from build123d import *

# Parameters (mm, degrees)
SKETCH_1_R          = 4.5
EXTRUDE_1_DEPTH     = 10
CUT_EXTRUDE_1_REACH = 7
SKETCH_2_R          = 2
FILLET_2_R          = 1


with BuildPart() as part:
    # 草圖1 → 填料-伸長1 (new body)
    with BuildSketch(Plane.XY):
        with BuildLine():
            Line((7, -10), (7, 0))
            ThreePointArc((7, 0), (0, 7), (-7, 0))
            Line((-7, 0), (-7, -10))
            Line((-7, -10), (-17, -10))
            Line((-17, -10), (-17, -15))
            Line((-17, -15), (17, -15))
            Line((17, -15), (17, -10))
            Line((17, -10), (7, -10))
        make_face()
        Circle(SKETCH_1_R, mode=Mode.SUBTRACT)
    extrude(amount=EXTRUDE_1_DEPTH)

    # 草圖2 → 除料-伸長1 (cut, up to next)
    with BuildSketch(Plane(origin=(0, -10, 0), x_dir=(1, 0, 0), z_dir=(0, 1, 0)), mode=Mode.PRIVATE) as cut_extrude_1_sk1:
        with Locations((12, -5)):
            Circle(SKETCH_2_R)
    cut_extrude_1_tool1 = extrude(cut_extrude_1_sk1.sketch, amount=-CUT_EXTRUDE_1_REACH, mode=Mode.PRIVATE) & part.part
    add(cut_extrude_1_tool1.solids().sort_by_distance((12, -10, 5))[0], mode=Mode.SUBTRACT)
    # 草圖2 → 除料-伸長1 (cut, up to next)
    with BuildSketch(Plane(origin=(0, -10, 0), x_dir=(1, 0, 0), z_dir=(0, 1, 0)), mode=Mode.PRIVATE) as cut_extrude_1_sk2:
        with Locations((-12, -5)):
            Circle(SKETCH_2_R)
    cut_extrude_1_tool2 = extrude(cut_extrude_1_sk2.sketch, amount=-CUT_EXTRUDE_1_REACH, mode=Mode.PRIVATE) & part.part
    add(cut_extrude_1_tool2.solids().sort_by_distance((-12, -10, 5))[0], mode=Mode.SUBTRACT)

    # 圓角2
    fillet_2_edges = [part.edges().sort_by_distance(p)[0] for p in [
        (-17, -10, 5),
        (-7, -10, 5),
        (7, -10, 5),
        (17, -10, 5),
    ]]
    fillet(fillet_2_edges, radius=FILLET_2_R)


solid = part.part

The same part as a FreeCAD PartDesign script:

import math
import FreeCAD as App
import Part
import Sketcher


def edges_at(feature, points):
    """Names of the edges that pass closest to the given points."""
    edges = feature.Shape.Edges
    near = lambda p: min(range(len(edges)), key=lambda i: edges[i].distToShape(Part.Vertex(*p))[0])
    return sorted({f"Edge{near(p) + 1}" for p in points})

doc = App.newDocument("Part")
body = doc.addObject("PartDesign::Body", "Body")

# Sketch on XY plane
sketch1 = body.newObject("Sketcher::SketchObject", "Sketch")
sketch1.AttachmentSupport = (doc.getObject("XY_Plane"), [""])
sketch1.MapMode = "FlatFace"
sketch1.addGeometry([
    Part.LineSegment(App.Vector(7, -10, 0), App.Vector(7, 0, 0)),  # 0
    Part.ArcOfCircle(Part.Circle(App.Vector(0, 0, 0), App.Vector(0, 0, 1), 7), math.radians(0), math.radians(180)),  # 1
    Part.LineSegment(App.Vector(-7, 0, 0), App.Vector(-7, -10, 0)),  # 2
    Part.LineSegment(App.Vector(-7, -10, 0), App.Vector(-17, -10, 0)),  # 3
    Part.LineSegment(App.Vector(-17, -10, 0), App.Vector(-17, -15, 0)),  # 4
    Part.LineSegment(App.Vector(-17, -15, 0), App.Vector(17, -15, 0)),  # 5
    Part.LineSegment(App.Vector(17, -15, 0), App.Vector(17, -10, 0)),  # 6
    Part.LineSegment(App.Vector(17, -10, 0), App.Vector(7, -10, 0)),  # 7
    Part.Circle(App.Vector(0, 0, 0), App.Vector(0, 0, 1), 4.5),  # 8
], False)
sketch1.addConstraint([
    Sketcher.Constraint("Tangent", 0, 2, 1, 1),
    Sketcher.Constraint("Tangent", 1, 2, 2, 1),
    Sketcher.Constraint("Coincident", 2, 2, 3, 1),
    Sketcher.Constraint("Coincident", 3, 2, 4, 1),
    Sketcher.Constraint("Coincident", 4, 2, 5, 1),
    Sketcher.Constraint("Coincident", 5, 2, 6, 1),
    Sketcher.Constraint("Coincident", 6, 2, 7, 1),
    Sketcher.Constraint("Coincident", 7, 2, 0, 1),
    Sketcher.Constraint("Vertical", 0),
    Sketcher.Constraint("Vertical", 2),
    Sketcher.Constraint("Horizontal", 3),
    Sketcher.Constraint("Vertical", 4),
    Sketcher.Constraint("Horizontal", 5),
    Sketcher.Constraint("Vertical", 6),
    Sketcher.Constraint("Horizontal", 7),
    Sketcher.Constraint("Coincident", 1, 3, -1, 1),
    Sketcher.Constraint("Coincident", 8, 3, -1, 1),
    Sketcher.Constraint("Symmetric", 3, 2, 6, 2, -2),
    Sketcher.Constraint("Equal", 7, 0),
    Sketcher.Constraint("Diameter", 8, 9.0),
    Sketcher.Constraint("Radius", 1, 7.0),
    Sketcher.Constraint("DistanceX", 3, 2, 3, 1, 10.0),
    Sketcher.Constraint("DistanceY", 4, 2, 4, 1, 5.0),
])
pad1 = body.newObject("PartDesign::Pad", "Pad")
pad1.Profile = sketch1
pad1.Length = 10

# Sketch on XZ plane
sketch2 = body.newObject("Sketcher::SketchObject", "Sketch001")
sketch2.AttachmentSupport = (doc.getObject("XZ_Plane"), [""])
sketch2.MapMode = "FlatFace"
sketch2.AttachmentOffset = App.Placement(App.Vector(0, 0, 10), App.Rotation())
sketch2.addGeometry(Part.Circle(App.Vector(12, 5, 0), App.Vector(0, 0, 1), 2), False)
sketch2.addConstraint([
    Sketcher.Constraint("Diameter", 0, 4.0),
    Sketcher.Constraint("DistanceX", -1, 1, 0, 3, 12.0),
    Sketcher.Constraint("DistanceY", -1, 1, 0, 3, 5.0),
])
pocket1 = body.newObject("PartDesign::Pocket", "Pocket")
pocket1.Profile = sketch2
pocket1.Type = "UpToFirst"
pocket1.Reversed = True

# Sketch on XZ plane
sketch3 = body.newObject("Sketcher::SketchObject", "Sketch002")
sketch3.AttachmentSupport = (doc.getObject("XZ_Plane"), [""])
sketch3.MapMode = "FlatFace"
sketch3.AttachmentOffset = App.Placement(App.Vector(0, 0, 10), App.Rotation())
sketch3.addGeometry(Part.Circle(App.Vector(-12, 5, 0), App.Vector(0, 0, 1), 2), False)
sketch3.addConstraint([
    Sketcher.Constraint("Diameter", 0, 4.0),
    Sketcher.Constraint("DistanceX", 0, 3, -1, 1, 12.0),
    Sketcher.Constraint("DistanceY", -1, 1, 0, 3, 5.0),
])
pocket2 = body.newObject("PartDesign::Pocket", "Pocket001")
pocket2.Profile = sketch3
pocket2.Type = "UpToFirst"
pocket2.Reversed = True
doc.recompute()

fillet = body.newObject("PartDesign::Fillet", "Fillet")
fillet.Base = (pocket2, edges_at(pocket2, [
    (-17, -10, 5),
    (-7, -10, 5),
    (7, -10, 5),
    (17, -10, 5),
]))
fillet.Radius = 1

doc.recompute()
